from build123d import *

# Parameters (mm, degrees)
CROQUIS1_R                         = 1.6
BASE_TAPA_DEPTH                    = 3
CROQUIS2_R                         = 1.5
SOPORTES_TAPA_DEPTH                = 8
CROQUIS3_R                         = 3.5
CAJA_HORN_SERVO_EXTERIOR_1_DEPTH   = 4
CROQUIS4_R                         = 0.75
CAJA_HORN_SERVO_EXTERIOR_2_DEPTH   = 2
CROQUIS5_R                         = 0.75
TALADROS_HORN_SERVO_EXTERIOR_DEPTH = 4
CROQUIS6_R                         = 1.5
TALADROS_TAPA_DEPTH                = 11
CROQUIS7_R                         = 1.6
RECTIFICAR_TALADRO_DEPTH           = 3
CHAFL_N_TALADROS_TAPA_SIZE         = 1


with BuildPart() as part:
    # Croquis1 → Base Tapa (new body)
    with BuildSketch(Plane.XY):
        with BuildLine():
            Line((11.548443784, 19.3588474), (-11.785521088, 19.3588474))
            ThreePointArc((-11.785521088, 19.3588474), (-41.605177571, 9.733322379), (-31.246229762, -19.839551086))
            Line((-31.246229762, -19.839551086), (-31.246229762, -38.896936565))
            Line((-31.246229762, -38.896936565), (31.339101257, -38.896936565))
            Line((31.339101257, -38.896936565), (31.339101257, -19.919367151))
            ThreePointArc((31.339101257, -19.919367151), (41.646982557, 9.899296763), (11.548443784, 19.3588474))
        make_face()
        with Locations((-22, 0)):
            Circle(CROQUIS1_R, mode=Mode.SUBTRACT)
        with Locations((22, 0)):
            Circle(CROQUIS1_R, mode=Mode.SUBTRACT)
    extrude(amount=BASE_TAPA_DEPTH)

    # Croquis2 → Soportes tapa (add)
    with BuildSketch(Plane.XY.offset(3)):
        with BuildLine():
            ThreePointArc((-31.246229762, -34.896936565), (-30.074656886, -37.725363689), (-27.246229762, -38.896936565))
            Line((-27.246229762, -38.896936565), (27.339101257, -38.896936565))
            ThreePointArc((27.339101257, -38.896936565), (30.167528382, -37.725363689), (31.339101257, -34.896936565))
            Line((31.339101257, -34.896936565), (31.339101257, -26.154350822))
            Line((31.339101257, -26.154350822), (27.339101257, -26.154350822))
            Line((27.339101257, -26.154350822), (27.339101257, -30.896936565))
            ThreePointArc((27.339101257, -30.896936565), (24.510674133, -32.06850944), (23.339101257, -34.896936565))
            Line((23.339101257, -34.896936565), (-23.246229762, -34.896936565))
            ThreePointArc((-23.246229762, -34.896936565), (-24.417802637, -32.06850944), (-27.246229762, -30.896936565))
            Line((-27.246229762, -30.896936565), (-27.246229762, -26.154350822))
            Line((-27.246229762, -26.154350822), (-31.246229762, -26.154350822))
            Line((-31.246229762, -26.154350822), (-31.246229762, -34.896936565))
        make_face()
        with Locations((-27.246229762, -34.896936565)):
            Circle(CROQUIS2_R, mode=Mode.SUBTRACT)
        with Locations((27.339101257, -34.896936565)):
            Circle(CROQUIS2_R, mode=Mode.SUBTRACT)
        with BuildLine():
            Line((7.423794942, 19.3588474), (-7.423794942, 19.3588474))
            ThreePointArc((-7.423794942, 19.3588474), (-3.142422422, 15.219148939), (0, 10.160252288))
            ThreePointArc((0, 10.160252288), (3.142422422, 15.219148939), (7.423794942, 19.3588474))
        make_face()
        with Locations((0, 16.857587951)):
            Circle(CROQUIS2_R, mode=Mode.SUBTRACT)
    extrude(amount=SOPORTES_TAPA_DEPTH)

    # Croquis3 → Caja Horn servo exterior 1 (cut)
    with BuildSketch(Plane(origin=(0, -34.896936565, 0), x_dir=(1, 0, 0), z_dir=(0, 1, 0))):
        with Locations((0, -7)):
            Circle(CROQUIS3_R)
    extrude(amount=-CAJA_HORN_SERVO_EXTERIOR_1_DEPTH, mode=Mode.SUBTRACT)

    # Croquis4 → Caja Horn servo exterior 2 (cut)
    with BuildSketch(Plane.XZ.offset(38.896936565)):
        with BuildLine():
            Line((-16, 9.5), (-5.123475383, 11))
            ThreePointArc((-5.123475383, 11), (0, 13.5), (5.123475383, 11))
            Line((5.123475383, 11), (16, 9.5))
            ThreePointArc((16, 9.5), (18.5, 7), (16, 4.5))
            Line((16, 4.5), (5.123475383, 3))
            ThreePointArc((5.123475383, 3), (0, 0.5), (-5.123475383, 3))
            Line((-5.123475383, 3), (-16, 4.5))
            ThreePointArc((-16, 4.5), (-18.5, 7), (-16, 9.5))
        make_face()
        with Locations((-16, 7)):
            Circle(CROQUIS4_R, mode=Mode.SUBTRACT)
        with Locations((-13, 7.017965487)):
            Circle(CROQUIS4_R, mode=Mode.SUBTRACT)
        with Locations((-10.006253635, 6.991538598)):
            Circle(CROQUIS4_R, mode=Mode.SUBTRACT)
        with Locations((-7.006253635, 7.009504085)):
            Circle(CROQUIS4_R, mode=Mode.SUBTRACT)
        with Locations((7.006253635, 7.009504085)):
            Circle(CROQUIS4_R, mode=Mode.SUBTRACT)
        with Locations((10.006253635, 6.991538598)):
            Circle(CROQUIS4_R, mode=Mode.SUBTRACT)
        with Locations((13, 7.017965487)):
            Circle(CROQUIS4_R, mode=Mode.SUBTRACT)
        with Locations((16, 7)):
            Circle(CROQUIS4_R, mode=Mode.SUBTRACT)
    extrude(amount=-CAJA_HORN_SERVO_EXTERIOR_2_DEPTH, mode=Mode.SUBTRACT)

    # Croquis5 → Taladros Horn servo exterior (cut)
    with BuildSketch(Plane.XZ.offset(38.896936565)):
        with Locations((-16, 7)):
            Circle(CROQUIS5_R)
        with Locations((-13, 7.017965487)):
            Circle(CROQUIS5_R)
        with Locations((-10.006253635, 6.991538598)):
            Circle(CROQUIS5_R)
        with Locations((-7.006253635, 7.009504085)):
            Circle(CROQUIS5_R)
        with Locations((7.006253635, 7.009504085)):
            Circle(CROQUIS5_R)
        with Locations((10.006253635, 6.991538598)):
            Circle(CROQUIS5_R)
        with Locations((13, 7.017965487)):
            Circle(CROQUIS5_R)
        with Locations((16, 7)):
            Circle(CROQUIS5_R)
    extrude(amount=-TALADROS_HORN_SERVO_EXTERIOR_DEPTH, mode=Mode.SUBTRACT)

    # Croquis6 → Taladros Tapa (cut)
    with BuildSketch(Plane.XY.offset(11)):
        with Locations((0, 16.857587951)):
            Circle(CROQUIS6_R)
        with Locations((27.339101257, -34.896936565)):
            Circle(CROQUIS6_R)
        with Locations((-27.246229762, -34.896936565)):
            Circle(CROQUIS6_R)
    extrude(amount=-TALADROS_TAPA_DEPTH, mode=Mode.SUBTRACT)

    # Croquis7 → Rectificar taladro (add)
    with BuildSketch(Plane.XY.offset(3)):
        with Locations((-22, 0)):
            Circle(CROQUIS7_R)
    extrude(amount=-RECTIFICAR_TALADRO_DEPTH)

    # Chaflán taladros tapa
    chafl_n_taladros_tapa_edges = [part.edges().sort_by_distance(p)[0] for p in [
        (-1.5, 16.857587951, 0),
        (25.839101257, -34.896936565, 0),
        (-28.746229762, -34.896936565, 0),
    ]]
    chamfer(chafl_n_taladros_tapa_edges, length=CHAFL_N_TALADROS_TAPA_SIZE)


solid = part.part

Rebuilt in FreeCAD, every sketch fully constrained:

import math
import FreeCAD as App
import Part
import Sketcher

V = App.Vector


def edges_at(feature, points):
    """Names of the edges that pass closest to the given points."""
    edges = feature.Shape.Edges
    near = lambda p: min(range(len(edges)), key=lambda i: edges[i].distToShape(Part.Vertex(*p))[0])
    return sorted({f"Edge{near(p) + 1}" for p in points})

doc = App.newDocument("Part")
body = doc.addObject("PartDesign::Body", "Body")

sketch1 = body.newObject("Sketcher::SketchObject", "Sketch")
sketch1.AttachmentSupport = (doc.getObject("XY_Plane"), [""])
sketch1.MapMode = "FlatFace"
sketch1.addGeometry([
    Part.LineSegment(V(11.5, 19.4, 0), V(-11.8, 19.4, 0)),
    Part.ArcOfCircle(Part.Circle(V(-22, 0, 0), V(0, 0, 1), 21.9), math.radians(62), math.radians(245)),
    Part.LineSegment(V(-31.2, -19.8, 0), V(-31.2, -38.9, 0)),
    Part.LineSegment(V(-31.2, -38.9, 0), V(31.3, -38.9, 0)),
    Part.LineSegment(V(31.3, -38.9, 0), V(31.3, -19.9, 0)),
    Part.ArcOfCircle(Part.Circle(V(22, 0, 0), V(0, 0, 1), 22), math.radians(-65), math.radians(118)),
    Part.Circle(V(-22, 0, 0), V(0, 0, 1), 1.6),
    Part.Circle(V(22, 0, 0), V(0, 0, 1), 1.6),
], False)
sketch1.addConstraint([
    Sketcher.Constraint("Coincident", 0, 2, 1, 1),
    Sketcher.Constraint("Coincident", 1, 2, 2, 1),
    Sketcher.Constraint("Coincident", 2, 2, 3, 1),
    Sketcher.Constraint("Coincident", 3, 2, 4, 1),
    Sketcher.Constraint("Coincident", 4, 2, 5, 1),
    Sketcher.Constraint("Coincident", 5, 2, 0, 1),
    Sketcher.Constraint("Horizontal", 0),
    Sketcher.Constraint("Vertical", 2),
    Sketcher.Constraint("Horizontal", 3),
    Sketcher.Constraint("Vertical", 4),
    Sketcher.Constraint("Coincident", 6, 3, 1, 3),
    Sketcher.Constraint("Coincident", 7, 3, 5, 3),
    Sketcher.Constraint("Equal", 6, 7),
    Sketcher.Constraint("Symmetric", 1, 3, 5, 3, -1, 1),
    Sketcher.Constraint("PointOnObject", 1, 3, -1),
    Sketcher.Constraint("Radius", 5, 22.0),
    Sketcher.Constraint("Diameter", 6, 3.2),
    Sketcher.Constraint("DistanceX", 1, 3, -1, 1, 22.0),
    Sketcher.Constraint("Radius", 1, 21.888366),
    Sketcher.Constraint("DistanceX", 3, 1, 3, 2, 62.585331),
    Sketcher.Constraint("DistanceY", 4, 1, 4, 2, 18.977569),
    Sketcher.Constraint("DistanceX", -1, 1, 3, 2, 31.339101),
    Sketcher.Constraint("DistanceY", 1, 2, 0, 2, 39.198398),
])
pad1 = body.newObject("PartDesign::Pad", "Pad")
pad1.Profile = sketch1
pad1.Length = 3

sketch2 = body.newObject("Sketcher::SketchObject", "Sketch001")
sketch2.AttachmentSupport = (doc.getObject("XY_Plane"), [""])
sketch2.MapMode = "FlatFace"
sketch2.AttachmentOffset = App.Placement(V(0, 0, 3), App.Rotation())
sketch2.addGeometry([
    Part.ArcOfCircle(Part.Circle(V(-27.2, -34.9, 0), V(0, 0, 1), 4), math.radians(-180), math.radians(-90)),
    Part.LineSegment(V(-27.2, -38.9, 0), V(27.3, -38.9, 0)),
    Part.ArcOfCircle(Part.Circle(V(27.3, -34.9, 0), V(0, 0, 1), 4), math.radians(-90), math.radians(0)),
    Part.LineSegment(V(31.3, -34.9, 0), V(31.3, -26.2, 0)),
    Part.LineSegment(V(31.3, -26.2, 0), V(27.3, -26.2, 0)),
    Part.LineSegment(V(27.3, -26.2, 0), V(27.3, -30.9, 0)),
    Part.ArcOfCircle(Part.Circle(V(27.3, -34.9, 0), V(0, 0, 1), 4), math.radians(90), math.radians(180)),
    Part.LineSegment(V(23.3, -34.9, 0), V(-23.2, -34.9, 0)),
    Part.ArcOfCircle(Part.Circle(V(-27.2, -34.9, 0), V(0, 0, 1), 4), math.radians(0), math.radians(90)),
    Part.LineSegment(V(-27.2, -30.9, 0), V(-27.2, -26.2, 0)),
    Part.LineSegment(V(-27.2, -26.2, 0), V(-31.2, -26.2, 0)),
    Part.LineSegment(V(-31.2, -26.2, 0), V(-31.2, -34.9, 0)),
    Part.Circle(V(-27.2, -34.9, 0), V(0, 0, 1), 1.5),
    Part.Circle(V(27.3, -34.9, 0), V(0, 0, 1), 1.5),
    Part.LineSegment(V(7.4, 19.4, 0), V(-7.4, 19.4, 0)),
    Part.ArcOfCircle(Part.Circle(V(-22, 0, 0), V(0, 0, 1), 24.2), math.radians(25), math.radians(53)),
    Part.ArcOfCircle(Part.Circle(V(22, 0, 0), V(0, 0, 1), 24.2), math.radians(127), math.radians(155)),
    Part.Circle(V(0, 16.9, 0), V(0, 0, 1), 1.5),
], False)
sketch2.addConstraint([
    Sketcher.Constraint("Tangent", 0, 2, 1, 1),
    Sketcher.Constraint("Tangent", 1, 2, 2, 1),
    Sketcher.Constraint("Tangent", 2, 2, 3, 1),
    Sketcher.Constraint("Coincident", 3, 2, 4, 1),
    Sketcher.Constraint("Coincident", 4, 2, 5, 1),
    Sketcher.Constraint("Coincident", 5, 2, 6, 1),
    Sketcher.Constraint("Coincident", 6, 2, 7, 1),
    Sketcher.Constraint("Coincident", 7, 2, 8, 1),
    Sketcher.Constraint("Coincident", 8, 2, 9, 1),
    Sketcher.Constraint("Coincident", 9, 2, 10, 1),
    Sketcher.Constraint("Coincident", 10, 2, 11, 1),
    Sketcher.Constraint("Tangent", 11, 2, 0, 1),
    Sketcher.Constraint("Coincident", 14, 2, 15, 2),
    Sketcher.Constraint("Coincident", 15, 1, 16, 2),
    Sketcher.Constraint("Coincident", 16, 1, 14, 1),
    Sketcher.Constraint("Horizontal", 1),
    Sketcher.Constraint("Vertical", 3),
    Sketcher.Constraint("Horizontal", 4),
    Sketcher.Constraint("Vertical", 5),
    Sketcher.Constraint("Horizontal", 7),
    Sketcher.Constraint("Vertical", 9),
    Sketcher.Constraint("Horizontal", 10),
    Sketcher.Constraint("Vertical", 11),
    Sketcher.Constraint("Horizontal", 14),
    Sketcher.Constraint("Coincident", 6, 3, 2, 3),
    Sketcher.Constraint("Coincident", 8, 3, 0, 3),
    Sketcher.Constraint("Coincident", 12, 3, 0, 3),
    Sketcher.Constraint("Coincident", 13, 3, 2, 3),
    Sketcher.Constraint("Equal", 0, 2),
    Sketcher.Constraint("Equal", 2, 6),
    Sketcher.Constraint("Equal", 6, 8),
    Sketcher.Constraint("Equal", 12, 13),
    Sketcher.Constraint("Equal", 15, 16),
    Sketcher.Constraint("Equal", 13, 17),
    Sketcher.Constraint("Symmetric", 15, 3, 16, 3, -1, 1),
    Sketcher.Constraint("PointOnObject", 15, 3, -1),
    Sketcher.Constraint("PointOnObject", 17, 3, -2),
    Sketcher.Constraint("Horizontal", 2, 2, 6, 2),
    Sketcher.Constraint("Horizontal", 4, 2, 9, 2),
    Sketcher.Constraint("Vertical", 1, 2, 4, 2),
    Sketcher.Constraint("Vertical", 0, 2, 8, 2),
    Sketcher.Constraint("Diameter", 12, 3.0),
    Sketcher.Constraint("Radius", 0, 4.0),
    Sketcher.Constraint("DistanceX", 15, 3, -1, 1, 22.0),
    Sketcher.Constraint("Radius", 15, 24.232844),
    Sketcher.Constraint("DistanceX", 1, 1, 1, 2, 54.585331),
    Sketcher.Constraint("DistanceX", 14, 2, 14, 1, 14.84759),
    Sketcher.Constraint("DistanceX", -1, 1, 2, 3, 27.339101),
    Sketcher.Constraint("DistanceY", 9, 2, 14, 2, 45.513198),
    Sketcher.Constraint("DistanceY", 3, 1, 3, 2, 8.742586),
    Sketcher.Constraint("DistanceY", 17, 3, 14, 2, 2.501259),
])
pad2 = body.newObject("PartDesign::Pad", "Pad001")
pad2.Profile = sketch2
pad2.Length = 8

sketch3 = body.newObject("Sketcher::SketchObject", "Sketch002")
sketch3.AttachmentSupport = (doc.getObject("XZ_Plane"), [""])
sketch3.MapMode = "FlatFace"
sketch3.AttachmentOffset = App.Placement(V(0, 0, 34.896937), App.Rotation())
sketch3.addGeometry(Part.Circle(V(0, 7, 0), V(0, 0, 1), 3.5), False)
sketch3.addConstraint([
    Sketcher.Constraint("PointOnObject", 0, 3, -2),
    Sketcher.Constraint("Diameter", 0, 7.0),
    Sketcher.Constraint("DistanceY", -1, 1, 0, 3, 7.0),
])
pocket1 = body.newObject("PartDesign::Pocket", "Pocket")
pocket1.Profile = sketch3
pocket1.Length = 4
pocket1.Reversed = True

sketch4 = body.newObject("Sketcher::SketchObject", "Sketch003")
sketch4.AttachmentSupport = (doc.getObject("XZ_Plane"), [""])
sketch4.MapMode = "FlatFace"
sketch4.AttachmentOffset = App.Placement(V(0, 0, 38.896937), App.Rotation())
sketch4.addGeometry([
    Part.LineSegment(V(-5.1, 11, 0), V(-16, 9.5, 0)),
    Part.ArcOfCircle(Part.Circle(V(-16, 7, 0), V(0, 0, 1), 2.5), math.radians(90), math.radians(270)),
    Part.LineSegment(V(-16, 4.5, 0), V(-5.1, 3, 0)),
    Part.ArcOfCircle(Part.Circle(V(0, 7, 0), V(0, 0, 1), 6.5), math.radians(-142), math.radians(-38)),
    Part.LineSegment(V(5.1, 3, 0), V(16, 4.5, 0)),
    Part.ArcOfCircle(Part.Circle(V(16, 7, 0), V(0, 0, 1), 2.5), math.radians(-90), math.radians(90)),
    Part.LineSegment(V(16, 9.5, 0), V(5.1, 11, 0)),
    Part.ArcOfCircle(Part.Circle(V(0, 7, 0), V(0, 0, 1), 6.5), math.radians(38), math.radians(142)),
    Part.Circle(V(16, 7, 0), V(0, 0, 1), 0.8),
    Part.Circle(V(10, 7, 0), V(0, 0, 1), 0.8),
    Part.Circle(V(-10, 7, 0), V(0, 0, 1), 0.8),
    Part.Circle(V(-16, 7, 0), V(0, 0, 1), 0.8),
    Part.Circle(V(13, 7, 0), V(0, 0, 1), 0.8),
    Part.Circle(V(7, 7, 0), V(0, 0, 1), 0.8),
    Part.Circle(V(-7, 7, 0), V(0, 0, 1), 0.8),
    Part.Circle(V(-13, 7, 0), V(0, 0, 1), 0.8),
], False)
sketch4.addConstraint([
    Sketcher.Constraint("Coincident", 0, 2, 1, 1),
    Sketcher.Constraint("Coincident", 1, 2, 2, 1),
    Sketcher.Constraint("Coincident", 2, 2, 3, 1),
    Sketcher.Constraint("Coincident", 3, 2, 4, 1),
    Sketcher.Constraint("Coincident", 4, 2, 5, 1),
    Sketcher.Constraint("Coincident", 5, 2, 6, 1),
    Sketcher.Constraint("Coincident", 6, 2, 7, 1),
    Sketcher.Constraint("Coincident", 7, 2, 0, 1),
    Sketcher.Constraint("Coincident", 7, 3, 3, 3),
    Sketcher.Constraint("Coincident", 8, 3, 5, 3),
    Sketcher.Constraint("Coincident", 11, 3, 1, 3),
    Sketcher.Constraint("Equal", 1, 5),
    Sketcher.Constraint("Equal", 3, 7),
    Sketcher.Constraint("Equal", 8, 9),
    Sketcher.Constraint("Equal", 9, 10),
    Sketcher.Constraint("Equal", 10, 11),
    Sketcher.Constraint("Equal", 11, 12),
    Sketcher.Constraint("Equal", 12, 13),
    Sketcher.Constraint("Equal", 13, 14),
    Sketcher.Constraint("Equal", 14, 15),
    Sketcher.Constraint("Symmetric", 1, 3, 5, 3, -2),
    Sketcher.Constraint("Symmetric", 9, 3, 10, 3, -2),
    Sketcher.Constraint("Symmetric", 13, 3, 14, 3, -2),
    Sketcher.Constraint("Symmetric", 12, 3, 15, 3, -2),
    Sketcher.Constraint("Symmetric", 2, 2, 3, 2, -2),
    Sketcher.Constraint("Parallel", 0, 4),
    Sketcher.Constraint("Parallel", 2, 6),
    Sketcher.Constraint("Horizontal", 1, 3, 3, 3),
    Sketcher.Constraint("Horizontal", 6, 2, 7, 2),
    Sketcher.Constraint("Vertical", 11, 3, 0, 2),
    Sketcher.Constraint("Vertical", 0, 2, 1, 2),
    Sketcher.Constraint("Vertical", 8, 3, 4, 2),
    Sketcher.Constraint("Diameter", 8, 1.5),
    Sketcher.Constraint("Radius", 1, 2.5),
    Sketcher.Constraint("Radius", 3, 6.5),
    Sketcher.Constraint("DistanceX", 1, 3, -1, 1, 16.0),
    Sketcher.Constraint("DistanceY", -1, 1, 1, 3, 7.0),
    Sketcher.Constraint("DistanceX", -1, 1, 12, 3, 13.0),
    Sketcher.Constraint("DistanceY", -1, 1, 2, 2, 3.0),
    Sketcher.Constraint("DistanceX", 13, 3, 9, 3, 3.0),
    Sketcher.Constraint("DistanceY", -1, 1, 9, 3, 6.991539),
    Sketcher.Constraint("DistanceY", 13, 3, 12, 3, 0.008461),
    Sketcher.Constraint("DistanceX", 14, 3, 2, 2, 1.882778),
    Sketcher.Constraint("DistanceY", -1, 1, 12, 3, 7.017965),
])
pocket2 = body.newObject("PartDesign::Pocket", "Pocket001")
pocket2.Profile = sketch4
pocket2.Length = 2

sketch5 = body.newObject("Sketcher::SketchObject", "Sketch004")
sketch5.AttachmentSupport = (doc.getObject("XZ_Plane"), [""])
sketch5.MapMode = "FlatFace"
sketch5.AttachmentOffset = App.Placement(V(0, 0, 38.896937), App.Rotation())
sketch5.addGeometry([
    Part.Circle(V(-16, 7, 0), V(0, 0, 1), 0.8),
    Part.Circle(V(-13, 7, 0), V(0, 0, 1), 0.8),
    Part.Circle(V(-10, 7, 0), V(0, 0, 1), 0.8),
    Part.Circle(V(-7, 7, 0), V(0, 0, 1), 0.8),
    Part.Circle(V(7, 7, 0), V(0, 0, 1), 0.8),
    Part.Circle(V(10, 7, 0), V(0, 0, 1), 0.8),
    Part.Circle(V(13, 7, 0), V(0, 0, 1), 0.8),
    Part.Circle(V(16, 7, 0), V(0, 0, 1), 0.8),
], False)
sketch5.addConstraint([
    Sketcher.Constraint("Equal", 0, 1),
    Sketcher.Constraint("Equal", 1, 2),
    Sketcher.Constraint("Equal", 2, 3),
    Sketcher.Constraint("Equal", 3, 4),
    Sketcher.Constraint("Equal", 4, 5),
    Sketcher.Constraint("Equal", 5, 6),
    Sketcher.Constraint("Equal", 6, 7),
    Sketcher.Constraint("Symmetric", 3, 3, 4, 3, -2),
    Sketcher.Constraint("Symmetric", 2, 3, 5, 3, -2),
    Sketcher.Constraint("Symmetric", 1, 3, 6, 3, -2),
    Sketcher.Constraint("Symmetric", 0, 3, 7, 3, -2),
    Sketcher.Constraint("Diameter", 0, 1.5),
    Sketcher.Constraint("DistanceX", 0, 3, -1, 1, 16.0),
    Sketcher.Constraint("DistanceY", -1, 1, 0, 3, 7.0),
    Sketcher.Constraint("DistanceX", 1, 3, -1, 1, 13.0),
    Sketcher.Constraint("DistanceX", 2, 3, 3, 3, 3.0),
    Sketcher.Constraint("DistanceY", -1, 1, 2, 3, 6.991539),
    Sketcher.Constraint("DistanceY", 3, 3, 1, 3, 0.008461),
    Sketcher.Constraint("DistanceY", -1, 1, 1, 3, 7.017965),
    Sketcher.Constraint("DistanceX", 2, 3, -1, 1, 10.006254),
])
pocket3 = body.newObject("PartDesign::Pocket", "Pocket002")
pocket3.Profile = sketch5
pocket3.Length = 4

sketch6 = body.newObject("Sketcher::SketchObject", "Sketch005")
sketch6.AttachmentSupport = (doc.getObject("XY_Plane"), [""])
sketch6.MapMode = "FlatFace"
sketch6.AttachmentOffset = App.Placement(V(0, 0, 11), App.Rotation())
sketch6.addGeometry([
    Part.Circle(V(0, 16.9, 0), V(0, 0, 1), 1.5),
    Part.Circle(V(27.3, -34.9, 0), V(0, 0, 1), 1.5),
    Part.Circle(V(-27.2, -34.9, 0), V(0, 0, 1), 1.5),
], False)
sketch6.addConstraint([
    Sketcher.Constraint("Equal", 0, 1),
    Sketcher.Constraint("Equal", 1, 2),
    Sketcher.Constraint("PointOnObject", 0, 3, -2),
    Sketcher.Constraint("Horizontal", 1, 3, 2, 3),
    Sketcher.Constraint("Diameter", 0, 3.0),
    Sketcher.Constraint("DistanceX", -1, 1, 1, 3, 27.339101),
    Sketcher.Constraint("DistanceX", 2, 3, -1, 1, 27.24623),
    Sketcher.Constraint("DistanceY", -1, 1, 0, 3, 16.857588),
    Sketcher.Constraint("DistanceY", 1, 3, -1, 1, 34.896937),
])
pocket4 = body.newObject("PartDesign::Pocket", "Pocket003")
pocket4.Profile = sketch6
pocket4.Length = 11

sketch7 = body.newObject("Sketcher::SketchObject", "Sketch006")
sketch7.AttachmentSupport = (doc.getObject("XY_Plane"), [""])
sketch7.MapMode = "FlatFace"
sketch7.AttachmentOffset = App.Placement(V(0, 0, 3), App.Rotation())
sketch7.addGeometry(Part.Circle(V(-22, 0, 0), V(0, 0, 1), 1.6), False)
sketch7.addConstraint([
    Sketcher.Constraint("PointOnObject", 0, 3, -1),
    Sketcher.Constraint("Diameter", 0, 3.2),
    Sketcher.Constraint("DistanceX", 0, 3, -1, 1, 22.0),
])
pad3 = body.newObject("PartDesign::Pad", "Pad002")
pad3.Profile = sketch7
pad3.Length = 3
pad3.Reversed = True
doc.recompute()

chamfer = body.newObject("PartDesign::Chamfer", "Chamfer")
chamfer.Base = (pad3, edges_at(pad3, [(-1.5, 16.858, 0), (25.839, -34.897, 0), (-28.746, -34.897, 0)]))
chamfer.Size = 1

doc.recompute()
